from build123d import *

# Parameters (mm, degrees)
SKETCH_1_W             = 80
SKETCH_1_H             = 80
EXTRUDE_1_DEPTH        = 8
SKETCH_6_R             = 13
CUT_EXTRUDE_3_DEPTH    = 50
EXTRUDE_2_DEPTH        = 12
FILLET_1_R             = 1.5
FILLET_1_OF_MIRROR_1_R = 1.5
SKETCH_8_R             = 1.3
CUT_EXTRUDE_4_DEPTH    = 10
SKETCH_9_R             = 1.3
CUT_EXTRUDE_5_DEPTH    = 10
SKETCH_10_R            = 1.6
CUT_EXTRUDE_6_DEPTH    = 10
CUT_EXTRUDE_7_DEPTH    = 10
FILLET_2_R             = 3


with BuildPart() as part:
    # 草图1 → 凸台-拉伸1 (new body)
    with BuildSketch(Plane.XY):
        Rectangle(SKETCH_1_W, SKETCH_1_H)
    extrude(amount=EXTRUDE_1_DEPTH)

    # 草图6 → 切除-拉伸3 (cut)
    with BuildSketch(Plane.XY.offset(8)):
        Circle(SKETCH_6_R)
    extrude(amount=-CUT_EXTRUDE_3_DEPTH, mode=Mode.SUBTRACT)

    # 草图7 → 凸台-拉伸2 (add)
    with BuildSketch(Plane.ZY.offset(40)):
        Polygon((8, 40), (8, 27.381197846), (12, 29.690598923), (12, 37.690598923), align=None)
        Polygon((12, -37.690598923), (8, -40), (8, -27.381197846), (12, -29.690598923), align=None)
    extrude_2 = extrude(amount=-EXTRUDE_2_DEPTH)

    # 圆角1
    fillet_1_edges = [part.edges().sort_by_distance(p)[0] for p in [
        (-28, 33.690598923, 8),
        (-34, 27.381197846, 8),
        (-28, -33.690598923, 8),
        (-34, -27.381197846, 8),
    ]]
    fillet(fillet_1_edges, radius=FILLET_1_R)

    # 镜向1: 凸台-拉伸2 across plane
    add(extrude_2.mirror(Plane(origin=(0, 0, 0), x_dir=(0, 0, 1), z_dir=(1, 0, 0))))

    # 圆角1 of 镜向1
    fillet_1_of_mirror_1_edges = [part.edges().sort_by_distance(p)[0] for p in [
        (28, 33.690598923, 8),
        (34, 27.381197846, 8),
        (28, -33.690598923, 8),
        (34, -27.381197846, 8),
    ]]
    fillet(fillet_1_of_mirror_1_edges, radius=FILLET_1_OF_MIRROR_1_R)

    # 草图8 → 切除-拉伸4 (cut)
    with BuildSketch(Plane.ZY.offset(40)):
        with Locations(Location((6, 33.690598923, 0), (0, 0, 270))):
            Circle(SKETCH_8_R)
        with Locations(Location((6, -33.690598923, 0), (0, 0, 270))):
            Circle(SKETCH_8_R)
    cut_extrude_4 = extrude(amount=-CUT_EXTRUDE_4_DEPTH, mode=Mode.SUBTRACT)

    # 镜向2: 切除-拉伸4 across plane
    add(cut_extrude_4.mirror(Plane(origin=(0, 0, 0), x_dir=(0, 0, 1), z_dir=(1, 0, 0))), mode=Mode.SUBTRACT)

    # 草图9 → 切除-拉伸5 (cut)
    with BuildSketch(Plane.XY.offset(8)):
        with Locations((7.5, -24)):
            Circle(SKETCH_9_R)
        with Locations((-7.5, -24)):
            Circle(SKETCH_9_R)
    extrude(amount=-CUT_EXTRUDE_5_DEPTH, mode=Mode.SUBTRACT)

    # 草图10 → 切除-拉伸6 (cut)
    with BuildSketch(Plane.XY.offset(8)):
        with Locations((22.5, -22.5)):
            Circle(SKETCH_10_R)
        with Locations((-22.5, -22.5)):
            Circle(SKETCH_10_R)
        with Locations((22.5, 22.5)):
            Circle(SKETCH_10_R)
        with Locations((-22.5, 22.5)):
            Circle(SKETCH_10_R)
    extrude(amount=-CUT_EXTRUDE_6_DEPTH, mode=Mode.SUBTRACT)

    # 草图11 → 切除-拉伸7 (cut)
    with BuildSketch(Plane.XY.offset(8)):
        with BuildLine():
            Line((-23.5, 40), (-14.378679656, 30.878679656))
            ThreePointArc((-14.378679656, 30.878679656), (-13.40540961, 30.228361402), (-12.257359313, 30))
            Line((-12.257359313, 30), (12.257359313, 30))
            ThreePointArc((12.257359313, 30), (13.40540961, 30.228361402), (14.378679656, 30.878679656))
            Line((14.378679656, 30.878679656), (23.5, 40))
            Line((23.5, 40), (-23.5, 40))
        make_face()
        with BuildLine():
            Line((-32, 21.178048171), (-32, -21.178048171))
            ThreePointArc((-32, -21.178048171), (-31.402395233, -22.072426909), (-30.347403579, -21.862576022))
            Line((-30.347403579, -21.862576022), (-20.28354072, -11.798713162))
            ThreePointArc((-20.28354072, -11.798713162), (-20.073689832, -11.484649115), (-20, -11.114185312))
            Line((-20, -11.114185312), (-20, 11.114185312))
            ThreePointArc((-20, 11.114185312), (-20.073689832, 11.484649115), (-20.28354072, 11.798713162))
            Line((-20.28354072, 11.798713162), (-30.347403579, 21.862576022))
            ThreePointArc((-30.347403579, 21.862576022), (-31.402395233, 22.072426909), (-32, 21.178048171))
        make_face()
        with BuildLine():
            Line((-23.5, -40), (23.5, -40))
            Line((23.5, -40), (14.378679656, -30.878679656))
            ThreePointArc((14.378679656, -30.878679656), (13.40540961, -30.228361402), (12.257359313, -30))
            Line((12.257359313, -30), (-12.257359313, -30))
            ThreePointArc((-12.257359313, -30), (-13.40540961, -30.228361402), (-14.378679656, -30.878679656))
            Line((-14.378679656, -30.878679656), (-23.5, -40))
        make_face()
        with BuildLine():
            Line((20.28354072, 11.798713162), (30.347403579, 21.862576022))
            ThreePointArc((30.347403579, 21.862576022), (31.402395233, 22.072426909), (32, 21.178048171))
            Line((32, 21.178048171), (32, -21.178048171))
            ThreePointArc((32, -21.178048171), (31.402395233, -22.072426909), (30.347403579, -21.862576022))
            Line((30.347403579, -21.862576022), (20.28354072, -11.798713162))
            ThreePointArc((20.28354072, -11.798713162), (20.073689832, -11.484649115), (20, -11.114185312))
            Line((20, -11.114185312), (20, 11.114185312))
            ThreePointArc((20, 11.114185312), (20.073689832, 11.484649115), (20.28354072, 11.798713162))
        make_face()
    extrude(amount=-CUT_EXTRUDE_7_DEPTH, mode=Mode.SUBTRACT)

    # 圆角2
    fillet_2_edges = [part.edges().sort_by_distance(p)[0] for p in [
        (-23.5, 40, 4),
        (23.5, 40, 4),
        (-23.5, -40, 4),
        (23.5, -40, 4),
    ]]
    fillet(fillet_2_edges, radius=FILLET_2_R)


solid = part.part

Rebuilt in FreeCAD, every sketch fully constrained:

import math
import FreeCAD as App
import Part
import Sketcher
Q = App.Units.Quantity


def edges_at(feature, points):
    """Names of the edges that pass closest to the given points."""
    edges = feature.Shape.Edges
    near = lambda p: min(range(len(edges)), key=lambda i: edges[i].distToShape(Part.Vertex(*p))[0])
    return sorted({f"Edge{near(p) + 1}" for p in points})


def add_polygon(sketch, points):
    """Adds a closed chain of lines whose ends are joined by coincident constraints."""
    first, n = sketch.GeometryCount, len(points)
    for a, b in zip(points, points[1:] + points[:1]):
        sketch.addGeometry(Part.LineSegment(App.Vector(*a, 0), App.Vector(*b, 0)), False)
    for i in range(n):
        sketch.addConstraint(Sketcher.Constraint("Coincident", first + i, 2, first + (i + 1) % n, 1))

doc = App.newDocument("Part")
params = doc.addObject("Spreadsheet::Sheet", "Params")
for row, (alias, value) in enumerate([
    ("sketch1_width", "80 mm"),
    ("pad1_length", "8 mm"),
    ("sketch2_diameter", "26 mm"),
    ("pocket1_length", "50 mm"),
    ("sketch3_width", "8 mm"),
    ("pad2_length", "12 mm"),
    ("fillet_radius", "1.5 mm"),
    ("fillet2_radius", "1.5 mm"),
    ("sketch4_diameter", "2.6 mm"),
    ("pocket2_length", "10 mm"),
    ("sketch5_diameter", "2.6 mm"),
    ("pocket3_length", "10 mm"),
    ("sketch6_diameter", "3.2 mm"),
    ("pocket4_length", "10 mm"),
    ("sketch7_radius", "3 mm"),
    ("sketch7_width", "47 mm"),
    ("pocket5_length", "10 mm"),
    ("fillet3_radius", "3 mm"),
], start=1):
    params.set(f"A{row}", alias)
    params.set(f"B{row}", "=" + value)
    params.setAlias(f"B{row}", alias)

body = doc.addObject("PartDesign::Body", "Body")

# Sketch on XY plane
sketch1 = body.newObject("Sketcher::SketchObject", "Sketch")
sketch1.AttachmentSupport = (doc.getObject("XY_Plane"), [""])
sketch1.MapMode = "FlatFace"
add_polygon(sketch1, [(-40, 40), (-40, -40), (40, -40), (40, 40)])  # lines 0-3
sketch1.addConstraint(Sketcher.Constraint("Vertical", 0))
sketch1.addConstraint(Sketcher.Constraint("Horizontal", 1))
sketch1.addConstraint(Sketcher.Constraint("Vertical", 2))
sketch1.addConstraint(Sketcher.Constraint("Horizontal", 3))
sketch1.addConstraint(Sketcher.Constraint("Symmetric", 0, 2, 2, 2, -1, 1))
sketch1.addConstraint(Sketcher.Constraint("Equal", 3, 0))
sketch1.addConstraint(Sketcher.Constraint("DistanceX", 1, 1, 1, 2, 80.0))
sketch1.setExpression("Constraints[10]", "Params.sketch1_width")
pad1 = body.newObject("PartDesign::Pad", "Pad")
pad1.Profile = sketch1
pad1.setExpression("Length", "Params.pad1_length")

# Sketch on XY plane
sketch2 = body.newObject("Sketcher::SketchObject", "Sketch001")
sketch2.AttachmentSupport = (doc.getObject("XY_Plane"), [""])
sketch2.MapMode = "FlatFace"
sketch2.AttachmentOffset = App.Placement(App.Vector(0, 0, 8), App.Rotation())
sketch2.addGeometry(Part.Circle(App.Vector(0, 0, 0), App.Vector(0, 0, 1), 13), False)
sketch2.addConstraint(Sketcher.Constraint("Coincident", 0, 3, -1, 1))
sketch2.addConstraint(Sketcher.Constraint("Diameter", 0, 26.0))
sketch2.setExpression("Constraints[1]", "Params.sketch2_diameter")
pocket1 = body.newObject("PartDesign::Pocket", "Pocket")
pocket1.Profile = sketch2
pocket1.setExpression("Length", "Params.pocket1_length")

# Sketch on YZ plane
sketch3 = body.newObject("Sketcher::SketchObject", "Sketch002")
sketch3.AttachmentSupport = (doc.getObject("YZ_Plane"), [""])
sketch3.MapMode = "FlatFace"
sketch3.AttachmentOffset = App.Placement(App.Vector(0, 0, -40), App.Rotation())
add_polygon(sketch3, [(40, 8), (27.381198, 8), (29.690599, 12), (37.690599, 12)])  # lines 0-3
add_polygon(sketch3, [(-40, 8), (-37.690599, 12), (-29.690599, 12), (-27.381198, 8)])  # lines 4-7
sketch3.addConstraint(Sketcher.Constraint("Horizontal", 0))
sketch3.addConstraint(Sketcher.Constraint("Horizontal", 2))
sketch3.addConstraint(Sketcher.Constraint("Horizontal", 5))
sketch3.addConstraint(Sketcher.Constraint("Horizontal", 7))
sketch3.addConstraint(Sketcher.Constraint("Symmetric", 2, 2, 4, 2, -2))
sketch3.addConstraint(Sketcher.Constraint("Symmetric", 0, 2, 6, 2, -2))
sketch3.addConstraint(Sketcher.Constraint("Parallel", 1, 4))
sketch3.addConstraint(Sketcher.Constraint("Parallel", 3, 6))
sketch3.addConstraint(Sketcher.Constraint("Equal", 2, 5))
sketch3.addConstraint(Sketcher.Constraint("DistanceX", 2, 1, 2, 2, 8.0))
sketch3.addConstraint(Sketcher.Constraint("Angle", 1, Q("60 deg")))
sketch3.addConstraint(Sketcher.Constraint("DistanceY", -1, 1, 0, 2, 8.0))
sketch3.addConstraint(Sketcher.Constraint("DistanceY", -1, 1, 1, 2, 12.0))
sketch3.addConstraint(Sketcher.Constraint("DistanceX", -1, 1, 3, 2, 40.0))
sketch3.setExpression("Constraints[17]", "Params.sketch3_width")
pad2 = body.newObject("PartDesign::Pad", "Pad001")
pad2.Profile = sketch3
pad2.setExpression("Length", "Params.pad2_length")
doc.recompute()

fillet = body.newObject("PartDesign::Fillet", "Fillet")
fillet.Base = (pad2, edges_at(pad2, [
    (-28, 33.691, 8),
    (-34, 27.381, 8),
    (-28, -33.691, 8),
    (-34, -27.381, 8),
]))
fillet.setExpression("Radius", "Params.fillet_radius")
doc.recompute()

mirrored = body.newObject("PartDesign::Mirrored", "Mirrored")
mirrored.Originals = [pad2]
mirrored.MirrorPlane = (doc.getObject("YZ_Plane"), [""])
body.Tip = mirrored
doc.recompute()

fillet2 = body.newObject("PartDesign::Fillet", "Fillet001")
fillet2.Base = (mirrored, edges_at(mirrored, [
    (28, 33.691, 8),
    (34, 27.381, 8),
    (28, -33.691, 8),
    (34, -27.381, 8),
]))
fillet2.setExpression("Radius", "Params.fillet2_radius")

# Sketch on YZ plane
sketch4 = body.newObject("Sketcher::SketchObject", "Sketch003")
sketch4.AttachmentSupport = (doc.getObject("YZ_Plane"), [""])
sketch4.MapMode = "FlatFace"
sketch4.AttachmentOffset = App.Placement(App.Vector(0, 0, -40), App.Rotation())
sketch4.addGeometry(Part.Circle(App.Vector(33.690599, 6, 0), App.Vector(0, 0, 1), 1.3), False)
sketch4.addGeometry(Part.Circle(App.Vector(-33.690599, 6, 0), App.Vector(0, 0, 1), 1.3), False)
sketch4.addConstraint(Sketcher.Constraint("Equal", 0, 1))
sketch4.addConstraint(Sketcher.Constraint("Symmetric", 0, 3, 1, 3, -2))
sketch4.addConstraint(Sketcher.Constraint("Diameter", 0, 2.6))
sketch4.addConstraint(Sketcher.Constraint("DistanceY", -1, 1, 0, 3, 6.0))
sketch4.addConstraint(Sketcher.Constraint("DistanceX", -1, 1, 0, 3, 33.690599))
sketch4.setExpression("Constraints[2]", "Params.sketch4_diameter")
pocket2 = body.newObject("PartDesign::Pocket", "Pocket001")
pocket2.Profile = sketch4
pocket2.setExpression("Length", "Params.pocket2_length")
pocket2.Reversed = True
doc.recompute()

mirrored2 = body.newObject("PartDesign::Mirrored", "Mirrored001")
mirrored2.Originals = [pocket2]
mirrored2.MirrorPlane = (doc.getObject("YZ_Plane"), [""])
body.Tip = mirrored2

# Sketch on XY plane
sketch5 = body.newObject("Sketcher::SketchObject", "Sketch004")
sketch5.AttachmentSupport = (doc.getObject("XY_Plane"), [""])
sketch5.MapMode = "FlatFace"
sketch5.AttachmentOffset = App.Placement(App.Vector(0, 0, 8), App.Rotation())
sketch5.addGeometry(Part.Circle(App.Vector(7.5, -24, 0), App.Vector(0, 0, 1), 1.3), False)
sketch5.addGeometry(Part.Circle(App.Vector(-7.5, -24, 0), App.Vector(0, 0, 1), 1.3), False)
sketch5.addConstraint(Sketcher.Constraint("Equal", 0, 1))
sketch5.addConstraint(Sketcher.Constraint("Symmetric", 0, 3, 1, 3, -2))
sketch5.addConstraint(Sketcher.Constraint("Diameter", 0, 2.6))
sketch5.addConstraint(Sketcher.Constraint("DistanceY", 0, 3, -1, 1, 24.0))
sketch5.addConstraint(Sketcher.Constraint("DistanceX", 1, 3, 0, 3, 15.0))
sketch5.setExpression("Constraints[2]", "Params.sketch5_diameter")
pocket3 = body.newObject("PartDesign::Pocket", "Pocket002")
pocket3.Profile = sketch5
pocket3.setExpression("Length", "Params.pocket3_length")

# Sketch on XY plane
sketch6 = body.newObject("Sketcher::SketchObject", "Sketch005")
sketch6.AttachmentSupport = (doc.getObject("XY_Plane"), [""])
sketch6.MapMode = "FlatFace"
sketch6.AttachmentOffset = App.Placement(App.Vector(0, 0, 8), App.Rotation())
sketch6.addGeometry(Part.Circle(App.Vector(22.5, -22.5, 0), App.Vector(0, 0, 1), 1.6), False)
sketch6.addGeometry(Part.Circle(App.Vector(-22.5, -22.5, 0), App.Vector(0, 0, 1), 1.6), False)
sketch6.addGeometry(Part.Circle(App.Vector(22.5, 22.5, 0), App.Vector(0, 0, 1), 1.6), False)
sketch6.addGeometry(Part.Circle(App.Vector(-22.5, 22.5, 0), App.Vector(0, 0, 1), 1.6), False)
sketch6.addConstraint(Sketcher.Constraint("Equal", 0, 1))
sketch6.addConstraint(Sketcher.Constraint("Equal", 1, 2))
sketch6.addConstraint(Sketcher.Constraint("Equal", 2, 3))
sketch6.addConstraint(Sketcher.Constraint("Symmetric", 1, 3, 2, 3, -1, 1))
sketch6.addConstraint(Sketcher.Constraint("Symmetric", 0, 3, 3, 3, -1, 1))
sketch6.addConstraint(Sketcher.Constraint("Symmetric", 0, 3, 1, 3, -2))
sketch6.addConstraint(Sketcher.Constraint("Diameter", 0, 3.2))
sketch6.addConstraint(Sketcher.Constraint("DistanceX", 1, 3, 0, 3, 45.0))
sketch6.addConstraint(Sketcher.Constraint("DistanceY", 0, 3, 2, 3, 45.0))
sketch6.setExpression("Constraints[6]", "Params.sketch6_diameter")
pocket4 = body.newObject("PartDesign::Pocket", "Pocket003")
pocket4.Profile = sketch6
pocket4.setExpression("Length", "Params.pocket4_length")

# Sketch on XY plane
sketch7 = body.newObject("Sketcher::SketchObject", "Sketch006")
sketch7.AttachmentSupport = (doc.getObject("XY_Plane"), [""])
sketch7.MapMode = "FlatFace"
sketch7.AttachmentOffset = App.Placement(App.Vector(0, 0, 8), App.Rotation())
sketch7.addGeometry(Part.LineSegment(App.Vector(-23.5, 40, 0), App.Vector(-14.37868, 30.87868, 0)), False)
sketch7.addGeometry(Part.ArcOfCircle(Part.Circle(App.Vector(-12.257359, 33, 0), App.Vector(0, 0, 1), 3), math.radians(-135), math.radians(-90)), False)
sketch7.addGeometry(Part.LineSegment(App.Vector(-12.257359, 30, 0), App.Vector(12.257359, 30, 0)), False)
sketch7.addGeometry(Part.ArcOfCircle(Part.Circle(App.Vector(12.257359, 33, 0), App.Vector(0, 0, 1), 3), math.radians(-90), math.radians(-45)), False)
sketch7.addGeometry(Part.LineSegment(App.Vector(14.37868, 30.87868, 0), App.Vector(23.5, 40, 0)), False)
sketch7.addGeometry(Part.LineSegment(App.Vector(23.5, 40, 0), App.Vector(-23.5, 40, 0)), False)
sketch7.addGeometry(Part.LineSegment(App.Vector(-32, 21.178048, 0), App.Vector(-32, -21.178048, 0)), False)
sketch7.addGeometry(Part.ArcOfCircle(Part.Circle(App.Vector(-31.031931, -21.178048, 0), App.Vector(0, 0, 1), 0.968069), math.radians(180), math.radians(315)), False)
sketch7.addGeometry(Part.LineSegment(App.Vector(-30.347404, -21.862576, 0), App.Vector(-20.283541, -11.798713, 0)), False)
sketch7.addGeometry(Part.ArcOfCircle(Part.Circle(App.Vector(-20.968069, -11.114185, 0), App.Vector(0, 0, 1), 0.968069), math.radians(-45), math.radians(0)), False)
sketch7.addGeometry(Part.LineSegment(App.Vector(-20, -11.114185, 0), App.Vector(-20, 11.114185, 0)), False)
sketch7.addGeometry(Part.ArcOfCircle(Part.Circle(App.Vector(-20.968069, 11.114185, 0), App.Vector(0, 0, 1), 0.968069), math.radians(0), math.radians(45)), False)
sketch7.addGeometry(Part.LineSegment(App.Vector(-20.283541, 11.798713, 0), App.Vector(-30.347404, 21.862576, 0)), False)
sketch7.addGeometry(Part.ArcOfCircle(Part.Circle(App.Vector(-31.031931, 21.178048, 0), App.Vector(0, 0, 1), 0.968069), math.radians(45), math.radians(180)), False)
sketch7.addGeometry(Part.LineSegment(App.Vector(-23.5, -40, 0), App.Vector(23.5, -40, 0)), False)
sketch7.addGeometry(Part.LineSegment(App.Vector(23.5, -40, 0), App.Vector(14.37868, -30.87868, 0)), False)
sketch7.addGeometry(Part.ArcOfCircle(Part.Circle(App.Vector(12.257359, -33, 0), App.Vector(0, 0, 1), 3), math.radians(45), math.radians(90)), False)
sketch7.addGeometry(Part.LineSegment(App.Vector(12.257359, -30, 0), App.Vector(-12.257359, -30, 0)), False)
sketch7.addGeometry(Part.ArcOfCircle(Part.Circle(App.Vector(-12.257359, -33, 0), App.Vector(0, 0, 1), 3), math.radians(90), math.radians(135)), False)
sketch7.addGeometry(Part.LineSegment(App.Vector(-14.37868, -30.87868, 0), App.Vector(-23.5, -40, 0)), False)
sketch7.addGeometry(Part.LineSegment(App.Vector(30.347404, 21.862576, 0), App.Vector(20.283541, 11.798713, 0)), False)
sketch7.addGeometry(Part.ArcOfCircle(Part.Circle(App.Vector(20.968069, 11.114185, 0), App.Vector(0, 0, 1), 0.968069), math.radians(135), math.radians(180)), False)
sketch7.addGeometry(Part.LineSegment(App.Vector(20, 11.114185, 0), App.Vector(20, -11.114185, 0)), False)
sketch7.addGeometry(Part.ArcOfCircle(Part.Circle(App.Vector(20.968069, -11.114185, 0), App.Vector(0, 0, 1), 0.968069), math.radians(180), math.radians(225)), False)
sketch7.addGeometry(Part.LineSegment(App.Vector(20.283541, -11.798713, 0), App.Vector(30.347404, -21.862576, 0)), False)
sketch7.addGeometry(Part.ArcOfCircle(Part.Circle(App.Vector(31.031931, -21.178048, 0), App.Vector(0, 0, 1), 0.968069), math.radians(-135), math.radians(0)), False)
sketch7.addGeometry(Part.LineSegment(App.Vector(32, -21.178048, 0), App.Vector(32, 21.178048, 0)), False)
sketch7.addGeometry(Part.ArcOfCircle(Part.Circle(App.Vector(31.031931, 21.178048, 0), App.Vector(0, 0, 1), 0.968069), math.radians(0), math.radians(135)), False)
sketch7.addConstraint(Sketcher.Constraint("Tangent", 0, 2, 1, 1))
sketch7.addConstraint(Sketcher.Constraint("Tangent", 1, 2, 2, 1))
sketch7.addConstraint(Sketcher.Constraint("Tangent", 2, 2, 3, 1))
sketch7.addConstraint(Sketcher.Constraint("Tangent", 3, 2, 4, 1))
sketch7.addConstraint(Sketcher.Constraint("Coincident", 4, 2, 5, 1))
sketch7.addConstraint(Sketcher.Constraint("Coincident", 5, 2, 0, 1))
sketch7.addConstraint(Sketcher.Constraint("Tangent", 6, 2, 7, 1))
sketch7.addConstraint(Sketcher.Constraint("Tangent", 7, 2, 8, 1))
sketch7.addConstraint(Sketcher.Constraint("Tangent", 8, 2, 9, 1))
sketch7.addConstraint(Sketcher.Constraint("Tangent", 9, 2, 10, 1))
sketch7.addConstraint(Sketcher.Constraint("Tangent", 10, 2, 11, 1))
sketch7.addConstraint(Sketcher.Constraint("Tangent", 11, 2, 12, 1))
sketch7.addConstraint(Sketcher.Constraint("Tangent", 12, 2, 13, 1))
sketch7.addConstraint(Sketcher.Constraint("Tangent", 13, 2, 6, 1))
sketch7.addConstraint(Sketcher.Constraint("Coincident", 14, 2, 15, 1))
sketch7.addConstraint(Sketcher.Constraint("Tangent", 15, 2, 16, 1))
sketch7.addConstraint(Sketcher.Constraint("Tangent", 16, 2, 17, 1))
sketch7.addConstraint(Sketcher.Constraint("Tangent", 17, 2, 18, 1))
sketch7.addConstraint(Sketcher.Constraint("Tangent", 18, 2, 19, 1))
sketch7.addConstraint(Sketcher.Constraint("Coincident", 19, 2, 14, 1))
sketch7.addConstraint(Sketcher.Constraint("Tangent", 20, 2, 21, 1))
sketch7.addConstraint(Sketcher.Constraint("Tangent", 21, 2, 22, 1))
sketch7.addConstraint(Sketcher.Constraint("Tangent", 22, 2, 23, 1))
sketch7.addConstraint(Sketcher.Constraint("Tangent", 23, 2, 24, 1))
sketch7.addConstraint(Sketcher.Constraint("Tangent", 24, 2, 25, 1))
sketch7.addConstraint(Sketcher.Constraint("Tangent", 25, 2, 26, 1))
sketch7.addConstraint(Sketcher.Constraint("Tangent", 26, 2, 27, 1))
sketch7.addConstraint(Sketcher.Constraint("Tangent", 27, 2, 20, 1))
sketch7.addConstraint(Sketcher.Constraint("Horizontal", 2))
sketch7.addConstraint(Sketcher.Constraint("Horizontal", 5))
sketch7.addConstraint(Sketcher.Constraint("Vertical", 6))
sketch7.addConstraint(Sketcher.Constraint("Vertical", 10))
sketch7.addConstraint(Sketcher.Constraint("Horizontal", 14))
sketch7.addConstraint(Sketcher.Constraint("Horizontal", 17))
sketch7.addConstraint(Sketcher.Constraint("Vertical", 22))
sketch7.addConstraint(Sketcher.Constraint("Vertical", 26))
sketch7.addConstraint(Sketcher.Constraint("Equal", 1, 3))
sketch7.addConstraint(Sketcher.Constraint("Equal", 7, 9))
sketch7.addConstraint(Sketcher.Constraint("Equal", 9, 11))
sketch7.addConstraint(Sketcher.Constraint("Equal", 11, 13))
sketch7.addConstraint(Sketcher.Constraint("Equal", 3, 16))
sketch7.addConstraint(Sketcher.Constraint("Equal", 16, 18))
sketch7.addConstraint(Sketcher.Constraint("Equal", 13, 21))
sketch7.addConstraint(Sketcher.Constraint("Equal", 21, 23))
sketch7.addConstraint(Sketcher.Constraint("Equal", 23, 25))
sketch7.addConstraint(Sketcher.Constraint("Equal", 25, 27))
sketch7.addConstraint(Sketcher.Constraint("Symmetric", 1, 3, 16, 3, -1, 1))
sketch7.addConstraint(Sketcher.Constraint("Symmetric", 9, 3, 21, 3, -1, 1))
sketch7.addConstraint(Sketcher.Constraint("Symmetric", 13, 3, 25, 3, -1, 1))
sketch7.addConstraint(Sketcher.Constraint("Symmetric", 5, 2, 14, 2, -1, 1))
sketch7.addConstraint(Sketcher.Constraint("Symmetric", 3, 2, 18, 2, -1, 1))
sketch7.addConstraint(Sketcher.Constraint("Symmetric", 0, 2, 3, 2, -2))
sketch7.addConstraint(Sketcher.Constraint("Symmetric", 11, 2, 20, 2, -2))
sketch7.addConstraint(Sketcher.Constraint("Symmetric", 8, 2, 23, 2, -2))
sketch7.addConstraint(Sketcher.Constraint("Perpendicular", 0, 4))
sketch7.addConstraint(Sketcher.Constraint("Parallel", 4, 8))
sketch7.addConstraint(Sketcher.Constraint("Radius", 1, 3.0))
sketch7.addConstraint(Sketcher.Constraint("DistanceX", 5, 2, 5, 1, 47.0))
sketch7.addConstraint(Sketcher.Constraint("DistanceY", -1, 1, 1, 3, 33.0))
sketch7.addConstraint(Sketcher.Constraint("DistanceY", -1, 1, 4, 2, 40.0))
sketch7.addConstraint(Sketcher.Constraint("DistanceX", 6, 2, -1, 1, 32.0))
sketch7.addConstraint(Sketcher.Constraint("DistanceX", 9, 2, -1, 1, 20.0))
sketch7.addConstraint(Sketcher.Constraint("Radius", 7, 0.968069))
sketch7.addConstraint(Sketcher.Constraint("DistanceY", 10, 1, 10, 2, 22.228371))
sketch7.setExpression("Constraints[56]", "Params.sketch7_radius")
sketch7.setExpression("Constraints[57]", "Params.sketch7_width")
pocket5 = body.newObject("PartDesign::Pocket", "Pocket004")
pocket5.Profile = sketch7
pocket5.setExpression("Length", "Params.pocket5_length")
doc.recompute()

fillet3 = body.newObject("PartDesign::Fillet", "Fillet002")
fillet3.Base = (pocket5, edges_at(pocket5, [
    (-23.5, 40, 4),
    (23.5, 40, 4),
    (-23.5, -40, 4),
    (23.5, -40, 4),
]))
fillet3.setExpression("Radius", "Params.fillet3_radius")

doc.recompute()
